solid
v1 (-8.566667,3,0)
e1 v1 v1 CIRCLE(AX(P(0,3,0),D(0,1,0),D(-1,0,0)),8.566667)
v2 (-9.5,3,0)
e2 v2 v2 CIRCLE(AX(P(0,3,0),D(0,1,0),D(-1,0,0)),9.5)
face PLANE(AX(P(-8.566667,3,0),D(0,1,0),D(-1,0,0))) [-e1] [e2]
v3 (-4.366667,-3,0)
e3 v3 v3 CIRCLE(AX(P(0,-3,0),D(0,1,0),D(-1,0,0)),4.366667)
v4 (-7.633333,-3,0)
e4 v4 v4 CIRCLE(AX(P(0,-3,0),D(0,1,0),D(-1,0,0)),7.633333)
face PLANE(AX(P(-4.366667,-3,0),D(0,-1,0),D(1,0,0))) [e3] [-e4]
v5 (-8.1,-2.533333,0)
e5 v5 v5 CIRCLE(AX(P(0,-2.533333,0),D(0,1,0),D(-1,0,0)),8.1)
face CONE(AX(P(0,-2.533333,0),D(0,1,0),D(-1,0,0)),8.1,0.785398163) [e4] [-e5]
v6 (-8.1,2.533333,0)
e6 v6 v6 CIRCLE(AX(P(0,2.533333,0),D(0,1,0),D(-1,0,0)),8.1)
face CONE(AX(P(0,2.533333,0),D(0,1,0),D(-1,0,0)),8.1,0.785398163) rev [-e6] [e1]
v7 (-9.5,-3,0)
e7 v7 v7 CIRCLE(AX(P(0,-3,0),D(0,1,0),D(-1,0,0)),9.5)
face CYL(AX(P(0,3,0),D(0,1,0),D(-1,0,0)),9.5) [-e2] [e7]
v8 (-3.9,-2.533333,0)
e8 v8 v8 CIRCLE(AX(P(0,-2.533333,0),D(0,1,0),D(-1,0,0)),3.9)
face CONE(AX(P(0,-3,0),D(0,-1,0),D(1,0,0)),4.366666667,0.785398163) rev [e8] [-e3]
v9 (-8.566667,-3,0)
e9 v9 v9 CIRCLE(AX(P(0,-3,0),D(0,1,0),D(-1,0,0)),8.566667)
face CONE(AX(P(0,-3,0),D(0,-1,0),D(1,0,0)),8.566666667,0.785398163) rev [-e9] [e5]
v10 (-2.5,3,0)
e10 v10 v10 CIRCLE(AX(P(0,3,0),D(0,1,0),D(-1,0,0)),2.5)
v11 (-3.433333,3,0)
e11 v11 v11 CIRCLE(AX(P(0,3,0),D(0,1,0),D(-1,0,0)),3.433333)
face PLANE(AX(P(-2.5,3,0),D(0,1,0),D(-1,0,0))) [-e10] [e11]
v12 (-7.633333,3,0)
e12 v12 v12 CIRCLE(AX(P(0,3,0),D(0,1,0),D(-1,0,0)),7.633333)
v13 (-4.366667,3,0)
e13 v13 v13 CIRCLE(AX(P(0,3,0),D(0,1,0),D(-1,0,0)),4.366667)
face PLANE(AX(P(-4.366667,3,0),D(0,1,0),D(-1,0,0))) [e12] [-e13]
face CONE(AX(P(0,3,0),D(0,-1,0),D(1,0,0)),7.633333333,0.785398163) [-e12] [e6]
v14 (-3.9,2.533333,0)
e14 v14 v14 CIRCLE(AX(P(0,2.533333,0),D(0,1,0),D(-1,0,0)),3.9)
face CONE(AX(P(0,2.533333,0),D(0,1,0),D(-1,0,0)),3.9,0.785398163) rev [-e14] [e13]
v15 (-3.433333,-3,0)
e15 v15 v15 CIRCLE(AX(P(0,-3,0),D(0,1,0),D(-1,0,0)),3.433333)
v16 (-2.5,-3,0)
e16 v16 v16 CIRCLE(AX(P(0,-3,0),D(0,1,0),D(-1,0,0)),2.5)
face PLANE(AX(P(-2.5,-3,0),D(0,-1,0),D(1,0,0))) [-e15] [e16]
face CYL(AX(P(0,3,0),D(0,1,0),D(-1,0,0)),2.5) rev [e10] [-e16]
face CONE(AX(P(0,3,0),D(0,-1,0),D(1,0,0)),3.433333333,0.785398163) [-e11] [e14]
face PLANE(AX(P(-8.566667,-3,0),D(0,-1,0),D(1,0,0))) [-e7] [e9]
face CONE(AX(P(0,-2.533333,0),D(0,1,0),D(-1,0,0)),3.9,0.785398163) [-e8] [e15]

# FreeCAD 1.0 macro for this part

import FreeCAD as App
import Part
import Sketcher

V = App.Vector
Q = App.Units.Quantity


def add_polygon(sketch, points):
    """Adds a closed chain of lines whose ends are joined by coincident constraints."""
    first, n = sketch.GeometryCount, len(points)
    for a, b in zip(points, points[1:] + points[:1]):
        sketch.addGeometry(Part.LineSegment(App.Vector(*a, 0), App.Vector(*b, 0)), False)
    for i in range(n):
        sketch.addConstraint(Sketcher.Constraint("Coincident", first + i, 2, first + (i + 1) % n, 1))

doc = App.newDocument("Part")
params = doc.addObject("Spreadsheet::Sheet", "Params")
for row, (alias, value) in enumerate([
    ("sketch1_height", "6 mm"),
    ("revolution_angle", "360 deg"),
], start=1):
    params.set(f"A{row}", alias)
    params.set(f"B{row}", "=" + value)
    params.setAlias(f"B{row}", alias)

body = doc.addObject("PartDesign::Body", "Body")

sketch1 = body.newObject("Sketcher::SketchObject", "Sketch")
sketch1.AttachmentSupport = (doc.getObject("XY_Plane"), [""])
sketch1.MapMode = "FlatFace"
add_polygon(sketch1, [(-2.5, 3), (-3.4, 3), (-3.9, 2.5), (-4.4, 3), (-7.6, 3), (-8.1, 2.5), (-8.6, 3), (-9.5, 3), (-9.5, -3), (-8.6, -3), (-8.1, -2.5), (-7.6, -3), (-4.4, -3), (-3.9, -2.5), (-3.4, -3), (-2.5, -3)])
sketch1.addConstraint([
    Sketcher.Constraint("Horizontal", 0),
    Sketcher.Constraint("Horizontal", 3),
    Sketcher.Constraint("Horizontal", 6),
    Sketcher.Constraint("Vertical", 7),
    Sketcher.Constraint("Horizontal", 8),
    Sketcher.Constraint("Horizontal", 11),
    Sketcher.Constraint("Horizontal", 14),
    Sketcher.Constraint("Vertical", 15),
    Sketcher.Constraint("Symmetric", 5, 2, 8, 2, -1),
    Sketcher.Constraint("Symmetric", 4, 2, 9, 2, -1),
    Sketcher.Constraint("Symmetric", 3, 2, 10, 2, -1),
    Sketcher.Constraint("Symmetric", 1, 2, 12, 2, -1),
    Sketcher.Constraint("Symmetric", 0, 2, 13, 2, -1),
    Sketcher.Constraint("Perpendicular", 1, 2),
    Sketcher.Constraint("Perpendicular", 2, 4),
    Sketcher.Constraint("Perpendicular", 4, 5),
    Sketcher.Constraint("Perpendicular", 5, 9),
    Sketcher.Constraint("Perpendicular", 10, 12),
    Sketcher.Constraint("Horizontal", 0, 2, 2, 2),
    Sketcher.Constraint("Horizontal", 1, 2, 4, 2),
    Sketcher.Constraint("Horizontal", 3, 2, 5, 2),
    Sketcher.Constraint("Equal", 0, 6),
    Sketcher.Constraint("DistanceY", 7, 2, 7, 1, Q("6 mm")),
    Sketcher.Constraint("DistanceX", 1, 2, -1, 1, Q("3.9 mm")),
    Sketcher.Constraint("DistanceX", 4, 2, -1, 1, Q("8.1 mm")),
    Sketcher.Constraint("DistanceX", 6, 2, -1, 1, Q("9.5 mm")),
    Sketcher.Constraint("DistanceX", 0, 2, 0, 1, Q("0.933333 mm")),
])
sketch1.setExpression("Constraints[38]", "Params.sketch1_height")
revolution = body.newObject("PartDesign::Revolution", "Revolution")
revolution.Profile = sketch1
revolution.ReferenceAxis = (sketch1, ["V_Axis"])
revolution.setExpression("Angle", "Params.revolution_angle")

doc.recompute()
